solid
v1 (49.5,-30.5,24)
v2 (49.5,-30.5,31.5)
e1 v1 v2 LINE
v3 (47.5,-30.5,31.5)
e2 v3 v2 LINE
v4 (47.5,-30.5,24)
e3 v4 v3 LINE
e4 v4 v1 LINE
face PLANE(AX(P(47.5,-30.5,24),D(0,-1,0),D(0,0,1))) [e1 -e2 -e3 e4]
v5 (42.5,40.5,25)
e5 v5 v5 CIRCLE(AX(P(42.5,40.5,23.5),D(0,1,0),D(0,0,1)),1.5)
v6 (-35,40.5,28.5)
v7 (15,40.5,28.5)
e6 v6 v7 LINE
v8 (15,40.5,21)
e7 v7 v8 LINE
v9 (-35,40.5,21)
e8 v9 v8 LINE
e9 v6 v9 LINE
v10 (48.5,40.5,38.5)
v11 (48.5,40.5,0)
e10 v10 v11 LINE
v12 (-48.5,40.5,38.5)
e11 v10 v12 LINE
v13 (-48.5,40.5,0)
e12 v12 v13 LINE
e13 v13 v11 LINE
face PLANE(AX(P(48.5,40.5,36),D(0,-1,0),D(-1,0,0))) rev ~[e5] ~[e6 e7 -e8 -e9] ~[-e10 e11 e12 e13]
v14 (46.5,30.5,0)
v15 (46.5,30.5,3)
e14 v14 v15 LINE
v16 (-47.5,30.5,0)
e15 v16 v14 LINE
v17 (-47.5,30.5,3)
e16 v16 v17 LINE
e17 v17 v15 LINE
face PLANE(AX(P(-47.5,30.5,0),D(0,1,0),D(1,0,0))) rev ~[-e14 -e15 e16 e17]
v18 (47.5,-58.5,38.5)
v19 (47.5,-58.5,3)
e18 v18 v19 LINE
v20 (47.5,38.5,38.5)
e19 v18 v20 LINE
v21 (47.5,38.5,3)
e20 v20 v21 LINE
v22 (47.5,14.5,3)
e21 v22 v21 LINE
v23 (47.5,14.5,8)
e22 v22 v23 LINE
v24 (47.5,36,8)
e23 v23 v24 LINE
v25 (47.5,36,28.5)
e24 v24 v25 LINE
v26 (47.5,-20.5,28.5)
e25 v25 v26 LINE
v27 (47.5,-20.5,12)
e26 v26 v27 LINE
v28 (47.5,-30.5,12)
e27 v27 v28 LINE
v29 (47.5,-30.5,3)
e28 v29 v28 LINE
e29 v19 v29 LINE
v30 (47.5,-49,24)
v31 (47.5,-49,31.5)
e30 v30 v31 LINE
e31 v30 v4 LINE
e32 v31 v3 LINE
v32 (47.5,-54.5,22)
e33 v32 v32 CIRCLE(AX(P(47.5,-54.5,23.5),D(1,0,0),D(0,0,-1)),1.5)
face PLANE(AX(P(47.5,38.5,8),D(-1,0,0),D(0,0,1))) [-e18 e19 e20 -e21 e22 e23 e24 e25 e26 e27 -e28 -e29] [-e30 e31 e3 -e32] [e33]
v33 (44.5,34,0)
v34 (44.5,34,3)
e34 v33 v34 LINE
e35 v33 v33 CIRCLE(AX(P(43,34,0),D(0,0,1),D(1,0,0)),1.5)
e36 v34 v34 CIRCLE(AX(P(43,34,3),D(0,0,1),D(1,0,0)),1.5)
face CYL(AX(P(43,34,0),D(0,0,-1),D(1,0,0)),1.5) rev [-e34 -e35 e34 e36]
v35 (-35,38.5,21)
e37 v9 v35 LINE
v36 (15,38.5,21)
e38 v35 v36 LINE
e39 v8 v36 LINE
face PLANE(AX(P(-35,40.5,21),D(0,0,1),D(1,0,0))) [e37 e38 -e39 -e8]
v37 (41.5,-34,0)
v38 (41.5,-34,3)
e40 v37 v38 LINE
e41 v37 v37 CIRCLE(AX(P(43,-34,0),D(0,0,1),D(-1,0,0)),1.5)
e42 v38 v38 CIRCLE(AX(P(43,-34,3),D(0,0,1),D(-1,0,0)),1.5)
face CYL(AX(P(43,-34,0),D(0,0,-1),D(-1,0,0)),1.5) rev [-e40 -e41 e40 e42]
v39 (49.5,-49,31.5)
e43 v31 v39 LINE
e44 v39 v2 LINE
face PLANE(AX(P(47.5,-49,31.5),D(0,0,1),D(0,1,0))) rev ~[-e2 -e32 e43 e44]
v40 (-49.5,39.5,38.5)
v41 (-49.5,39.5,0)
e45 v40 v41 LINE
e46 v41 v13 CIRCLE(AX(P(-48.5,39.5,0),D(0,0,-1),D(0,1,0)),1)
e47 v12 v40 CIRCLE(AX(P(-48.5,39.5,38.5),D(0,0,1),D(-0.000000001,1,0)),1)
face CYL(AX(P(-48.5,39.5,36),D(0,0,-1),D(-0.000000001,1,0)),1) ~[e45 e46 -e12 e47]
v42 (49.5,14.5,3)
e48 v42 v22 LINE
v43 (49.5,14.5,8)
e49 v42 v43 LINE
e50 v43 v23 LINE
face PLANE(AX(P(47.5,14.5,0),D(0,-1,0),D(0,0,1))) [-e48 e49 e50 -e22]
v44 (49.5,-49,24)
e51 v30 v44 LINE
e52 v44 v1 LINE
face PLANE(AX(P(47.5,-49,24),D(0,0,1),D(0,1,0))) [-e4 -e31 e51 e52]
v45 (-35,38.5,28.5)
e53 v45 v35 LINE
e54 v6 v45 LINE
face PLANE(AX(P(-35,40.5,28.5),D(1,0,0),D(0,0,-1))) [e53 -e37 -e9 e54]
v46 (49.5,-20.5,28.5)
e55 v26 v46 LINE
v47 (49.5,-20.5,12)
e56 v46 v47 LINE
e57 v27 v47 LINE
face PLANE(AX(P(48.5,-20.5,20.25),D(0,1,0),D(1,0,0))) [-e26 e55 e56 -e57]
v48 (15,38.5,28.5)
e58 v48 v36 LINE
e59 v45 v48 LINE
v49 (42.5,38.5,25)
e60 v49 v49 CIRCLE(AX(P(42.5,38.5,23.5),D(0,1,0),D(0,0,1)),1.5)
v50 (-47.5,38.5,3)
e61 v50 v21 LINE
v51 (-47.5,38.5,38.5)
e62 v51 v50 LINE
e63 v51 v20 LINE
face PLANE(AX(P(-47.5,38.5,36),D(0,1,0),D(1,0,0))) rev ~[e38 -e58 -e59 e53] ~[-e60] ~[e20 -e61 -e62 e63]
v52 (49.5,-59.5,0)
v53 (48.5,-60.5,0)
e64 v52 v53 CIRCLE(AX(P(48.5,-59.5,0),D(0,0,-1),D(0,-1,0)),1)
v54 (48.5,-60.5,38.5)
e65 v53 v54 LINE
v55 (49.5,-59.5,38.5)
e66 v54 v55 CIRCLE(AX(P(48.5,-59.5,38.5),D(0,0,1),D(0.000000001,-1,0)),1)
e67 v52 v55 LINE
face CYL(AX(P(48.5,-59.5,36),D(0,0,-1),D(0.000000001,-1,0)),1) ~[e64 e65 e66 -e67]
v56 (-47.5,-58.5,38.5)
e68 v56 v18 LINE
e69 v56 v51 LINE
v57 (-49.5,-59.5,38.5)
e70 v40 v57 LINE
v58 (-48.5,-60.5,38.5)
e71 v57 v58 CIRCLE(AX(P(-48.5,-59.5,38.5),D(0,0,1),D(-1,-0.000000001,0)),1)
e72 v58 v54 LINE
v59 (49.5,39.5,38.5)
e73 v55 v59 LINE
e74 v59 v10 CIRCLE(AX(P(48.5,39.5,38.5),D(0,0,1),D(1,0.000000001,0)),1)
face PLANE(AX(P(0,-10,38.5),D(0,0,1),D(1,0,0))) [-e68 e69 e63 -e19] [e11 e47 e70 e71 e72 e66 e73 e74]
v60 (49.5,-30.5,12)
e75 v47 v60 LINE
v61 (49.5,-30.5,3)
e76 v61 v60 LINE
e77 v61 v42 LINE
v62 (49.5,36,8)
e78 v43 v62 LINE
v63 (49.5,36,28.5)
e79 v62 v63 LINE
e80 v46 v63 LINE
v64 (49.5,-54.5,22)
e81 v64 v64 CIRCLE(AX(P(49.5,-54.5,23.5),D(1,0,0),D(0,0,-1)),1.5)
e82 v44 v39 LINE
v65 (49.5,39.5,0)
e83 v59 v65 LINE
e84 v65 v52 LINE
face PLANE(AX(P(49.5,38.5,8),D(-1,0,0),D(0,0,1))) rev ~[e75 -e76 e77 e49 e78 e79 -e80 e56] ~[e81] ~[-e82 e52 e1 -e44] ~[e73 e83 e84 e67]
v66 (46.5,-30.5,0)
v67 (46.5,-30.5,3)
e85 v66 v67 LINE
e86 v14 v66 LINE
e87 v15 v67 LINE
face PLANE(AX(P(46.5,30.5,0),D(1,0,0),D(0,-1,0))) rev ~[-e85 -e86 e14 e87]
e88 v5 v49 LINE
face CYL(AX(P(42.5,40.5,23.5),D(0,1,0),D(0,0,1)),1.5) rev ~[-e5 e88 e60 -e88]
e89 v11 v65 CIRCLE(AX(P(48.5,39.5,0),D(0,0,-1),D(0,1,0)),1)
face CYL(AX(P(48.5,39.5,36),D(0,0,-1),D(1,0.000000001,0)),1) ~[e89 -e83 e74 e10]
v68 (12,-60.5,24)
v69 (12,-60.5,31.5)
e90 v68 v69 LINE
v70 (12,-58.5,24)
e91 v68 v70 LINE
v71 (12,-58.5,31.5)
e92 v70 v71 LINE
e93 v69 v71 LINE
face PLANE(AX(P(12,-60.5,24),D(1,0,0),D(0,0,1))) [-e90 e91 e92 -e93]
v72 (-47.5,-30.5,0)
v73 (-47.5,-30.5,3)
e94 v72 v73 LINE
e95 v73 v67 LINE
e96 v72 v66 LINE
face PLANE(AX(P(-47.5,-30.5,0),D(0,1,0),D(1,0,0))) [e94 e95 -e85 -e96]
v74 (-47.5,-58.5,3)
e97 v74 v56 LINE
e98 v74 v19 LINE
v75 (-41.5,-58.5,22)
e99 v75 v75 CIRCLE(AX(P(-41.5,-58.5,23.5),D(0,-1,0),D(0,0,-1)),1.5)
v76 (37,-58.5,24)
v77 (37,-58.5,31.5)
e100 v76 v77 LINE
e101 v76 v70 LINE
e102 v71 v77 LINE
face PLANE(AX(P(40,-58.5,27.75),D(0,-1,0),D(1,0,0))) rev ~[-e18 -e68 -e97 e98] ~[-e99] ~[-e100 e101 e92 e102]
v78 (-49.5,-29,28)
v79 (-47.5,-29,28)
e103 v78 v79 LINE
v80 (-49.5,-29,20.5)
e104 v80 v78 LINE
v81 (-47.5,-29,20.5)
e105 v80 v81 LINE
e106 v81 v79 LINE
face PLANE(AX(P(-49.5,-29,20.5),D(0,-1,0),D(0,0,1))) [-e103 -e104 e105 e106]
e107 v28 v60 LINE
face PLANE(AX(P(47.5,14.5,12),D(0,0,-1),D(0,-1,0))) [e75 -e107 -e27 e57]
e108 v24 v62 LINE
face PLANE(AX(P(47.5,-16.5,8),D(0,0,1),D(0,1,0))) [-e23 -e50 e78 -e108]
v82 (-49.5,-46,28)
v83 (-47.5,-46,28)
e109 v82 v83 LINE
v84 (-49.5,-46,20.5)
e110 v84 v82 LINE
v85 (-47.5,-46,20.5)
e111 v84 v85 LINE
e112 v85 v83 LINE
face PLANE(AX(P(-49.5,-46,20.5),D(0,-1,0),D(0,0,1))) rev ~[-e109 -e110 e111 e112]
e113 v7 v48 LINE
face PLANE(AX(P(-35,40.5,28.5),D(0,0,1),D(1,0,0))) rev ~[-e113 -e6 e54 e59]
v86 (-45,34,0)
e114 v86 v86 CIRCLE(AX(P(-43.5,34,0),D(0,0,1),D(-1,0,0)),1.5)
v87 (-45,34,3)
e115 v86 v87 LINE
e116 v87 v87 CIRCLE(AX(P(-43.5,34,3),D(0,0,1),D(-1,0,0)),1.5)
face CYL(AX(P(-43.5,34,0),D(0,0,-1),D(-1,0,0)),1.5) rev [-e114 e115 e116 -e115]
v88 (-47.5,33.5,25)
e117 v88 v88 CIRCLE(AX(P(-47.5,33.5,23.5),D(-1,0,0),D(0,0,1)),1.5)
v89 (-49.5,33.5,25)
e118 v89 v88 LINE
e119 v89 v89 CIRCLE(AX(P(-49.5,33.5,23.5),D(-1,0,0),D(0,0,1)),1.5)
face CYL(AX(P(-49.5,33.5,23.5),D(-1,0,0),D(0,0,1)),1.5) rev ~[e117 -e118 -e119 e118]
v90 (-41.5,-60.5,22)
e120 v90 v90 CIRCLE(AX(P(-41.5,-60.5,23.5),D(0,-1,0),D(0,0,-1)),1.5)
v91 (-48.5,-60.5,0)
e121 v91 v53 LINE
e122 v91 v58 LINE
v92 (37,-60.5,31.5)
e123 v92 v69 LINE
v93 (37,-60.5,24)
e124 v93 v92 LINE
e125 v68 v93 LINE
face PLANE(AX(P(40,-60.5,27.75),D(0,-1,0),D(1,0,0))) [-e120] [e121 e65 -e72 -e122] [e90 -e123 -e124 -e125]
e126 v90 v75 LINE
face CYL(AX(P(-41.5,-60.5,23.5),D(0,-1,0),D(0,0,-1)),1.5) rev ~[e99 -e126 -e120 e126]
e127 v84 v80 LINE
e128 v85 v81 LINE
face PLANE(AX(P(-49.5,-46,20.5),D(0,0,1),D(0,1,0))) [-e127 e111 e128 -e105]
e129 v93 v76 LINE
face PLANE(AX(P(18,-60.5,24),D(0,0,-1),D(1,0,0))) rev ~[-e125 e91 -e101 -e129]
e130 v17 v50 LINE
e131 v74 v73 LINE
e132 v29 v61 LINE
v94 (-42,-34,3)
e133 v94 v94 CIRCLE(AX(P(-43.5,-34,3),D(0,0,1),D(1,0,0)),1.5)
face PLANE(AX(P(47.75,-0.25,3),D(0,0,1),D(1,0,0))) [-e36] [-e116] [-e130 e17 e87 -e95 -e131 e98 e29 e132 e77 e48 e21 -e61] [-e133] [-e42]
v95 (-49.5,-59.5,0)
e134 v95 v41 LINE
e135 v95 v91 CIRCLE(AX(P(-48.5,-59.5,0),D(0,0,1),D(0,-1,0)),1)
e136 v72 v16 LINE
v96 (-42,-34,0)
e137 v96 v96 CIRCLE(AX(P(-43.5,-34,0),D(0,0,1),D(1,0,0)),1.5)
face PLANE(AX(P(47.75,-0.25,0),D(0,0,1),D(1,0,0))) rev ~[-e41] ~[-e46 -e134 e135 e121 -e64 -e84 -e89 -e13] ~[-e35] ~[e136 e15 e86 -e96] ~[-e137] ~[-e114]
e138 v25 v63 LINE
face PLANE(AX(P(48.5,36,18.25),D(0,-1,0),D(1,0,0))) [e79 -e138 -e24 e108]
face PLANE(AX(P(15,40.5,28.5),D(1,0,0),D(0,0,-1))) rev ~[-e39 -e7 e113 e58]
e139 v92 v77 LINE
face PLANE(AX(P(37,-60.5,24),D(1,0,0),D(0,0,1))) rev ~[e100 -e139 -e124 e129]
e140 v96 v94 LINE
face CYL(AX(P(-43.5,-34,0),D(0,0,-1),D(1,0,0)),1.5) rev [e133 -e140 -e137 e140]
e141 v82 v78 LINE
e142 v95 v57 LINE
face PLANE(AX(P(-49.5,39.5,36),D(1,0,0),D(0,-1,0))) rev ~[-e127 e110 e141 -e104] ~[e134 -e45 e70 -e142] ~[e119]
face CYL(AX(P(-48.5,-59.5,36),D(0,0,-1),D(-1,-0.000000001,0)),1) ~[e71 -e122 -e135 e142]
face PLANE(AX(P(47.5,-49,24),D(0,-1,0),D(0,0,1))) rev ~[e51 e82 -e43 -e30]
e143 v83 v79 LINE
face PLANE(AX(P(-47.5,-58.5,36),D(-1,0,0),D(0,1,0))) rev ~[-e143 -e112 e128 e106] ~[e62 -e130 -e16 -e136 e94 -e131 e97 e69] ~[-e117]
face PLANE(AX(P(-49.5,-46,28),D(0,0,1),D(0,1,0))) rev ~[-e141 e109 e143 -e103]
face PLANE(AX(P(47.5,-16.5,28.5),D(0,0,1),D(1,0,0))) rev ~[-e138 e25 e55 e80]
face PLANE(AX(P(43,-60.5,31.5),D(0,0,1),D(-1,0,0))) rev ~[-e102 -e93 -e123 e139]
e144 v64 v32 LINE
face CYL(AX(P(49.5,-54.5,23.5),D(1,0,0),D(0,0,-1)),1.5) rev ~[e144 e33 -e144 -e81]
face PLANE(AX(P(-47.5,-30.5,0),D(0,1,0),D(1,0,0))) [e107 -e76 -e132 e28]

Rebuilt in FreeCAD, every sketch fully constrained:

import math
import FreeCAD as App
import Part
import Sketcher


def edges_at(feature, points):
    """Names of the edges that pass closest to the given points."""
    edges = feature.Shape.Edges
    near = lambda p: min(range(len(edges)), key=lambda i: edges[i].distToShape(Part.Vertex(*p))[0])
    return sorted({f"Edge{near(p) + 1}" for p in points})


def add_polygon(sketch, points):
    """Adds a closed chain of lines whose ends are joined by coincident constraints."""
    first, n = sketch.GeometryCount, len(points)
    for a, b in zip(points, points[1:] + points[:1]):
        sketch.addGeometry(Part.LineSegment(App.Vector(*a, 0), App.Vector(*b, 0)), False)
    for i in range(n):
        sketch.addConstraint(Sketcher.Constraint("Coincident", first + i, 2, first + (i + 1) % n, 1))

doc = App.newDocument("Part")
params = doc.addObject("Spreadsheet::Sheet", "Params")
for row, (alias, value) in enumerate([
    ("sketch1_diameter", "3 mm"),
    ("sketch1_width", "99 mm"),
    ("sketch1_width2", "95 mm"),
    ("sketch1_height", "104 mm"),
    ("sketch1_height2", "61 mm"),
    ("pad1_length", "3 mm"),
    ("sketch2_width", "99 mm"),
    ("sketch2_width2", "95 mm"),
    ("sketch2_height", "104 mm"),
    ("sketch2_height2", "100 mm"),
    ("pad2_length", "33 mm"),
    ("sketch3_width", "45 mm"),
    ("sketch3_height", "12 mm"),
    ("pocket1_length", "30 mm"),
    ("sketch4_width", "50 mm"),
    ("sketch4_height", "7.5 mm"),
    ("pocket2_length", "30 mm"),
    ("sketch5_width", "55 mm"),
    ("sketch5_height", "28 mm"),
    ("pocket3_length", "30 mm"),
    ("sketch6_width", "18.5 mm"),
    ("sketch6_height", "7.5 mm"),
    ("pocket4_length", "30 mm"),
    ("sketch7_width", "25 mm"),
    ("sketch7_height", "7.5 mm"),
    ("pocket5_length", "30 mm"),
    ("fillet_radius", "1 mm"),
    ("sketch8_width", "2 mm"),
    ("sketch8_height", "55 mm"),
    ("pad3_length", "7.5 mm"),
    ("sketch9_width", "95 mm"),
    ("sketch9_width2", "25 mm"),
    ("sketch9_height", "33 mm"),
    ("sketch9_height2", "7.5 mm"),
    ("pad4_length", "3 mm"),
    ("pocket6_length", "3 mm"),
    ("sketch11_width", "1 mm"),
    ("sketch11_width2", "2 mm"),
    ("sketch11_height", "16 mm"),
    ("sketch11_height2", "45 mm"),
    ("pad5_length", "3 mm"),
    ("sketch12_width", "17 mm"),
    ("sketch12_height", "7.5 mm"),
    ("pocket7_length", "3 mm"),
    ("fillet2_radius", "1 mm"),
    ("sketch13_radius", "1 mm"),
    ("sketch13_width", "97 mm"),
    ("sketch13_width2", "95 mm"),
    ("sketch13_height", "99 mm"),
    ("pad6_length", "2.5 mm"),
    ("sketch14_width", "2 mm"),
    ("sketch14_height", "20.5 mm"),
    ("pad7_length", "2.5 mm"),
    ("sketch15_width", "25 mm"),
    ("sketch15_width2", "22 mm"),
    ("sketch15_height", "7.5 mm"),
    ("pocket8_length", "2 mm"),
    ("sketch16_width", "3 mm"),
    ("sketch16_width2", "25 mm"),
    ("sketch16_height", "7.5 mm"),
    ("pad8_length", "2 mm"),
    ("sketch17_diameter", "3 mm"),
    ("pocket9_length", "2 mm"),
    ("sketch18_diameter", "3 mm"),
    ("pocket10_length", "2 mm"),
    ("sketch19_diameter", "3 mm"),
    ("pocket11_length", "2 mm"),
    ("sketch20_diameter", "3 mm"),
    ("pocket12_length", "2 mm"),
    ("sketch21_width", "2 mm"),
    ("sketch21_height", "16.5 mm"),
    ("pocket13_length", "4 mm"),
    ("sketch22_width", "6 mm"),
    ("sketch22_height", "7.5 mm"),
    ("pad9_length", "2 mm"),
    ("sketch23_width", "6 mm"),
    ("sketch23_height", "7.5 mm"),
    ("pocket14_length", "2 mm"),
], start=1):
    params.set(f"A{row}", alias)
    params.set(f"B{row}", "=" + value)
    params.setAlias(f"B{row}", alias)

body = doc.addObject("PartDesign::Body", "Body")

# Sketch on XY plane
sketch1 = body.newObject("Sketcher::SketchObject", "Sketch")
sketch1.AttachmentSupport = (doc.getObject("XY_Plane"), [""])
sketch1.MapMode = "FlatFace"
add_polygon(sketch1, [(-49.5, 40.5), (-49.5, -63.5), (49.5, -63.5), (49.5, 40.5)])  # lines 0-3
sketch1.addGeometry(Part.Circle(App.Vector(-43.5, -34, 0), App.Vector(0, 0, 1), 1.5), False)  # 4
sketch1.addGeometry(Part.Circle(App.Vector(43, -34, 0), App.Vector(0, 0, 1), 1.5), False)  # 5
sketch1.addGeometry(Part.Circle(App.Vector(-43.5, 34, 0), App.Vector(0, 0, 1), 1.5), False)  # 6
add_polygon(sketch1, [(47.5, -30.5), (-47.5, -30.5), (-47.5, 30.5), (47.5, 30.5)])  # lines 7-10
sketch1.addGeometry(Part.Circle(App.Vector(43, 34, 0), App.Vector(0, 0, 1), 1.5), False)  # 11
sketch1.addConstraint([
    Sketcher.Constraint("Vertical", 0),
    Sketcher.Constraint("Horizontal", 1),
    Sketcher.Constraint("Vertical", 2),
    Sketcher.Constraint("Horizontal", 3),
    Sketcher.Constraint("Horizontal", 7),
    Sketcher.Constraint("Vertical", 8),
    Sketcher.Constraint("Horizontal", 9),
    Sketcher.Constraint("Vertical", 10),
    Sketcher.Constraint("Equal", 4, 5),
    Sketcher.Constraint("Equal", 5, 6),
    Sketcher.Constraint("Equal", 6, 11),
    Sketcher.Constraint("Symmetric", 7, 2, 9, 2, -1, 1),
    Sketcher.Constraint("Symmetric", 4, 3, 6, 3, -1),
    Sketcher.Constraint("Symmetric", 5, 3, 11, 3, -1),
    Sketcher.Constraint("Horizontal", 4, 3, 5, 3),
    Sketcher.Constraint("Diameter", 4, 3.0),
    Sketcher.Constraint("DistanceX", 1, 1, 1, 2, 99.0),
    Sketcher.Constraint("DistanceX", 7, 2, 7, 1, 95.0),
    Sketcher.Constraint("DistanceY", 0, 2, 0, 1, 104.0),
    Sketcher.Constraint("DistanceY", 8, 1, 8, 2, 61.0),
    Sketcher.Constraint("DistanceY", 4, 3, -1, 1, 34.0),
    Sketcher.Constraint("DistanceX", -1, 1, 5, 3, 43.0),
    Sketcher.Constraint("DistanceX", 0, 2, 4, 3, 6.0),
    Sketcher.Constraint("DistanceX", 7, 2, 4, 3, 4.0),
    Sketcher.Constraint("DistanceY", 0, 2, 7, 2, 33.0),
])
sketch1.setExpression("Constraints[23]", "Params.sketch1_diameter")
sketch1.setExpression("Constraints[24]", "Params.sketch1_width")
sketch1.setExpression("Constraints[25]", "Params.sketch1_width2")
sketch1.setExpression("Constraints[26]", "Params.sketch1_height")
sketch1.setExpression("Constraints[27]", "Params.sketch1_height2")
pad1 = body.newObject("PartDesign::Pad", "Pad")
pad1.Profile = sketch1
pad1.setExpression("Length", "Params.pad1_length")

# Sketch on XY plane
sketch2 = body.newObject("Sketcher::SketchObject", "Sketch001")
sketch2.AttachmentSupport = (doc.getObject("XY_Plane"), [""])
sketch2.MapMode = "FlatFace"
sketch2.AttachmentOffset = App.Placement(App.Vector(0, 0, 3), App.Rotation())
add_polygon(sketch2, [(-50, 40), (-50, -64), (50, -64), (50, 40)])  # lines 0-3
add_polygon(sketch2, [(48, -62), (-48, -62), (-48, 38), (48, 38)])  # lines 4-7
sketch2.addConstraint([
    Sketcher.Constraint("Vertical", 0),
    Sketcher.Constraint("Horizontal", 1),
    Sketcher.Constraint("Vertical", 2),
    Sketcher.Constraint("Horizontal", 3),
    Sketcher.Constraint("Horizontal", 4),
    Sketcher.Constraint("Vertical", 5),
    Sketcher.Constraint("Horizontal", 6),
    Sketcher.Constraint("Vertical", 7),
    Sketcher.Constraint("DistanceX", 1, 1, 1, 2, 99.0),
    Sketcher.Constraint("DistanceX", 4, 2, 4, 1, 95.0),
    Sketcher.Constraint("DistanceY", 0, 2, 0, 1, 104.0),
    Sketcher.Constraint("DistanceY", 5, 1, 5, 2, 100.0),
    Sketcher.Constraint("DistanceX", 0, 2, 4, 2, 2.0),
    Sketcher.Constraint("DistanceY", 0, 2, 4, 2, 2.0),
    Sketcher.Constraint("DistanceX", 0, 2, -1, 1, 49.5),
    Sketcher.Constraint("DistanceY", 0, 2, -1, 1, 63.5),
])
sketch2.setExpression("Constraints[16]", "Params.sketch2_width")
sketch2.setExpression("Constraints[17]", "Params.sketch2_width2")
sketch2.setExpression("Constraints[18]", "Params.sketch2_height")
sketch2.setExpression("Constraints[19]", "Params.sketch2_height2")
pad2 = body.newObject("PartDesign::Pad", "Pad001")
pad2.Profile = sketch2
pad2.setExpression("Length", "Params.pad2_length")

# Sketch on YZ plane
sketch3 = body.newObject("Sketcher::SketchObject", "Sketch002")
sketch3.AttachmentSupport = (doc.getObject("YZ_Plane"), [""])
sketch3.MapMode = "FlatFace"
sketch3.AttachmentOffset = App.Placement(App.Vector(0, 0, 47.5), App.Rotation())
add_polygon(sketch3, [(-30, 12), (14, 12), (14, 0), (-30, 0)])  # lines 0-3
sketch3.addConstraint([
    Sketcher.Constraint("Horizontal", 0),
    Sketcher.Constraint("Vertical", 1),
    Sketcher.Constraint("Horizontal", 2),
    Sketcher.Constraint("Vertical", 3),
    Sketcher.Constraint("PointOnObject", 1, 2, -1),
    Sketcher.Constraint("DistanceX", 0, 1, 0, 2, 45.0),
    Sketcher.Constraint("DistanceY", 1, 2, 1, 1, 12.0),
    Sketcher.Constraint("DistanceX", -1, 1, 0, 2, 14.5),
])
sketch3.setExpression("Constraints[9]", "Params.sketch3_width")
sketch3.setExpression("Constraints[10]", "Params.sketch3_height")
pocket1 = body.newObject("PartDesign::Pocket", "Pocket")
pocket1.Profile = sketch3
pocket1.setExpression("Length", "Params.pocket1_length")
pocket1.Reversed = True

# Sketch on XZ plane
sketch4 = body.newObject("Sketcher::SketchObject", "Sketch003")
sketch4.AttachmentSupport = (doc.getObject("XZ_Plane"), [""])
sketch4.MapMode = "FlatFace"
sketch4.AttachmentOffset = App.Placement(App.Vector(0, 0, -40.5), App.Rotation())
add_polygon(sketch4, [(-35, 21), (-35, 28), (15, 28), (15, 21)])  # lines 0-3
sketch4.addConstraint([
    Sketcher.Constraint("Vertical", 0),
    Sketcher.Constraint("Horizontal", 1),
    Sketcher.Constraint("Vertical", 2),
    Sketcher.Constraint("Horizontal", 3),
    Sketcher.Constraint("DistanceX", 1, 1, 1, 2, 50.0),
    Sketcher.Constraint("DistanceY", 0, 1, 0, 2, 7.5),
    Sketcher.Constraint("DistanceX", 0, 2, -1, 1, 35.0),
    Sketcher.Constraint("DistanceY", -1, 1, 2, 2, 21.0),
])
sketch4.setExpression("Constraints[8]", "Params.sketch4_width")
sketch4.setExpression("Constraints[9]", "Params.sketch4_height")
pocket2 = body.newObject("PartDesign::Pocket", "Pocket001")
pocket2.Profile = sketch4
pocket2.setExpression("Length", "Params.pocket2_length")
pocket2.Reversed = True

# Sketch on YZ plane
sketch5 = body.newObject("Sketcher::SketchObject", "Sketch004")
sketch5.AttachmentSupport = (doc.getObject("YZ_Plane"), [""])
sketch5.MapMode = "FlatFace"
sketch5.AttachmentOffset = App.Placement(App.Vector(0, 0, 47.5), App.Rotation())
add_polygon(sketch5, [(38, 8), (-16, 8), (-16, 36), (38, 36)])  # lines 0-3
sketch5.addConstraint([
    Sketcher.Constraint("Horizontal", 0),
    Sketcher.Constraint("Vertical", 1),
    Sketcher.Constraint("Horizontal", 2),
    Sketcher.Constraint("Vertical", 3),
    Sketcher.Constraint("DistanceX", 0, 2, 0, 1, 55.0),
    Sketcher.Constraint("DistanceY", 1, 1, 1, 2, 28.0),
    Sketcher.Constraint("DistanceY", -1, 1, 0, 2, 8.0),
    Sketcher.Constraint("DistanceX", 0, 2, -1, 1, 16.5),
])
sketch5.setExpression("Constraints[8]", "Params.sketch5_width")
sketch5.setExpression("Constraints[9]", "Params.sketch5_height")
pocket3 = body.newObject("PartDesign::Pocket", "Pocket002")
pocket3.Profile = sketch5
pocket3.setExpression("Length", "Params.pocket3_length")
pocket3.Reversed = True

# Sketch on YZ plane
sketch6 = body.newObject("Sketcher::SketchObject", "Sketch005")
sketch6.AttachmentSupport = (doc.getObject("YZ_Plane"), [""])
sketch6.MapMode = "FlatFace"
sketch6.AttachmentOffset = App.Placement(App.Vector(0, 0, 47.5), App.Rotation())
add_polygon(sketch6, [(-30, 24), (-49, 24), (-49, 32), (-30, 32)])  # lines 0-3
sketch6.addConstraint([
    Sketcher.Constraint("Horizontal", 0),
    Sketcher.Constraint("Vertical", 1),
    Sketcher.Constraint("Horizontal", 2),
    Sketcher.Constraint("Vertical", 3),
    Sketcher.Constraint("DistanceX", 0, 2, 0, 1, 18.5),
    Sketcher.Constraint("DistanceY", 1, 1, 1, 2, 7.5),
    Sketcher.Constraint("DistanceX", 0, 2, -1, 1, 49.0),
    Sketcher.Constraint("DistanceY", -1, 1, 0, 2, 24.0),
])
sketch6.setExpression("Constraints[8]", "Params.sketch6_width")
sketch6.setExpression("Constraints[9]", "Params.sketch6_height")
pocket4 = body.newObject("PartDesign::Pocket", "Pocket003")
pocket4.Profile = sketch6
pocket4.setExpression("Length", "Params.pocket4_length")
pocket4.Reversed = True

# Sketch on XZ plane
sketch7 = body.newObject("Sketcher::SketchObject", "Sketch006")
sketch7.AttachmentSupport = (doc.getObject("XZ_Plane"), [""])
sketch7.MapMode = "FlatFace"
sketch7.AttachmentOffset = App.Placement(App.Vector(0, 0, 61.5), App.Rotation())
add_polygon(sketch7, [(15, 21), (15, 28), (40, 28), (40, 21)])  # lines 0-3
sketch7.addConstraint([
    Sketcher.Constraint("Vertical", 0),
    Sketcher.Constraint("Horizontal", 1),
    Sketcher.Constraint("Vertical", 2),
    Sketcher.Constraint("Horizontal", 3),
    Sketcher.Constraint("DistanceX", 1, 1, 1, 2, 25.0),
    Sketcher.Constraint("DistanceY", 0, 1, 0, 2, 7.5),
    Sketcher.Constraint("DistanceX", -1, 1, 0, 2, 15.0),
    Sketcher.Constraint("DistanceY", -1, 1, 2, 2, 21.0),
])
sketch7.setExpression("Constraints[8]", "Params.sketch7_width")
sketch7.setExpression("Constraints[9]", "Params.sketch7_height")
pocket5 = body.newObject("PartDesign::Pocket", "Pocket004")
pocket5.Profile = sketch7
pocket5.setExpression("Length", "Params.pocket5_length")
pocket5.Reversed = True
doc.recompute()

fillet = body.newObject("PartDesign::Fillet", "Fillet")
fillet.Base = (pocket5, edges_at(pocket5, [
    (-49.5, 40.5, 18),
    (49.5, 40.5, 18),
    (49.5, -63.5, 18),
    (-49.5, -63.5, 18),
]))
fillet.setExpression("Radius", "Params.fillet_radius")

# Sketch on XY plane
sketch8 = body.newObject("Sketcher::SketchObject", "Sketch007")
sketch8.AttachmentSupport = (doc.getObject("XY_Plane"), [""])
sketch8.MapMode = "FlatFace"
sketch8.AttachmentOffset = App.Placement(App.Vector(0, 0, 36), App.Rotation())
add_polygon(sketch8, [(47.5, 38.5), (47.5, -16.5), (49.5, -16.5), (49.5, 38.5)])  # lines 0-3
sketch8.addConstraint([
    Sketcher.Constraint("Vertical", 0),
    Sketcher.Constraint("Horizontal", 1),
    Sketcher.Constraint("Vertical", 2),
    Sketcher.Constraint("Horizontal", 3),
    Sketcher.Constraint("DistanceX", 1, 1, 1, 2, 2.0),
    Sketcher.Constraint("DistanceY", 0, 2, 0, 1, 55.0),
    Sketcher.Constraint("DistanceX", -1, 1, 0, 2, 47.5),
    Sketcher.Constraint("DistanceY", 0, 2, -1, 1, 16.5),
])
sketch8.setExpression("Constraints[8]", "Params.sketch8_width")
sketch8.setExpression("Constraints[9]", "Params.sketch8_height")
pad3 = body.newObject("PartDesign::Pad", "Pad002")
pad3.Profile = sketch8
pad3.setExpression("Length", "Params.pad3_length")
pad3.Reversed = True

# Sketch on XZ plane
sketch9 = body.newObject("Sketcher::SketchObject", "Sketch008")
sketch9.AttachmentSupport = (doc.getObject("XZ_Plane"), [""])
sketch9.MapMode = "FlatFace"
sketch9.AttachmentOffset = App.Placement(App.Vector(0, 0, 61.5), App.Rotation())
add_polygon(sketch9, [(-48, 3), (-48, 36), (48, 36), (48, 3)])  # lines 0-3
add_polygon(sketch9, [(40, 28), (15, 28), (15, 21), (40, 21)])  # lines 4-7
sketch9.addConstraint([
    Sketcher.Constraint("Vertical", 0),
    Sketcher.Constraint("Horizontal", 1),
    Sketcher.Constraint("Vertical", 2),
    Sketcher.Constraint("Horizontal", 3),
    Sketcher.Constraint("Horizontal", 4),
    Sketcher.Constraint("Vertical", 5),
    Sketcher.Constraint("Horizontal", 6),
    Sketcher.Constraint("Vertical", 7),
    Sketcher.Constraint("DistanceX", 1, 1, 1, 2, 95.0),
    Sketcher.Constraint("DistanceX", 4, 2, 4, 1, 25.0),
    Sketcher.Constraint("DistanceY", 0, 1, 0, 2, 33.0),
    Sketcher.Constraint("DistanceY", 5, 2, 5, 1, 7.5),
    Sketcher.Constraint("DistanceY", -1, 1, 0, 2, 36.0),
    Sketcher.Constraint("DistanceX", -1, 1, 4, 2, 15.0),
    Sketcher.Constraint("DistanceY", -1, 1, 5, 2, 21.0),
    Sketcher.Constraint("DistanceX", 0, 2, -1, 1, 47.5),
])
sketch9.setExpression("Constraints[16]", "Params.sketch9_width")
sketch9.setExpression("Constraints[17]", "Params.sketch9_width2")
sketch9.setExpression("Constraints[18]", "Params.sketch9_height")
sketch9.setExpression("Constraints[19]", "Params.sketch9_height2")
pad4 = body.newObject("PartDesign::Pad", "Pad003")
pad4.Profile = sketch9
pad4.setExpression("Length", "Params.pad4_length")
pad4.Reversed = True

# Sketch on XZ plane
sketch10 = body.newObject("Sketcher::SketchObject", "Sketch009")
sketch10.AttachmentSupport = (doc.getObject("XZ_Plane"), [""])
sketch10.MapMode = "FlatFace"
sketch10.AttachmentOffset = App.Placement(App.Vector(0, 0, 63.5), App.Rotation())
add_polygon(sketch10, [(-86, 83), (-86, -51), (92, -51), (92, 83)])  # lines 0-3
sketch10.addConstraint([
    Sketcher.Constraint("Vertical", 0),
    Sketcher.Constraint("Horizontal", 1),
    Sketcher.Constraint("Vertical", 2),
    Sketcher.Constraint("Horizontal", 3),
    Sketcher.Constraint("DistanceX", 1, 1, 1, 2, 178.192268),
    Sketcher.Constraint("DistanceY", 0, 2, 0, 1, 134.394803),
    Sketcher.Constraint("DistanceX", 0, 2, -1, 1, 86.045619),
    Sketcher.Constraint("DistanceY", 0, 2, -1, 1, 51.295546),
])
pocket6 = body.newObject("PartDesign::Pocket", "Pocket005")
pocket6.Profile = sketch10
pocket6.setExpression("Length", "Params.pocket6_length")

# Sketch on XY plane
sketch11 = body.newObject("Sketcher::SketchObject", "Sketch010")
sketch11.AttachmentSupport = (doc.getObject("XY_Plane"), [""])
sketch11.MapMode = "FlatFace"
add_polygon(sketch11, [(46.5, 30.5), (47.5, 30.5), (47.5, 14.5), (49.5, 14.5), (49.5, -30.5), (46.5, -30.5)])  # lines 0-5
sketch11.addConstraint([
    Sketcher.Constraint("Horizontal", 0),
    Sketcher.Constraint("Vertical", 1),
    Sketcher.Constraint("Horizontal", 2),
    Sketcher.Constraint("Vertical", 3),
    Sketcher.Constraint("Horizontal", 4),
    Sketcher.Constraint("Vertical", 5),
    Sketcher.Constraint("DistanceX", 0, 1, 0, 2, 1.0),
    Sketcher.Constraint("DistanceX", 2, 1, 2, 2, 2.0),
    Sketcher.Constraint("DistanceY", 1, 2, 1, 1, 16.0),
    Sketcher.Constraint("DistanceY", 3, 2, 3, 1, 45.0),
    Sketcher.Constraint("DistanceX", -1, 1, 0, 2, 47.5),
    Sketcher.Constraint("DistanceY", -1, 1, 0, 2, 30.5),
])
sketch11.setExpression("Constraints[12]", "Params.sketch11_width")
sketch11.setExpression("Constraints[13]", "Params.sketch11_width2")
sketch11.setExpression("Constraints[14]", "Params.sketch11_height")
sketch11.setExpression("Constraints[15]", "Params.sketch11_height2")
pad5 = body.newObject("PartDesign::Pad", "Pad004")
pad5.Profile = sketch11
pad5.setExpression("Length", "Params.pad5_length")

# Sketch on YZ plane
sketch12 = body.newObject("Sketcher::SketchObject", "Sketch011")
sketch12.AttachmentSupport = (doc.getObject("YZ_Plane"), [""])
sketch12.MapMode = "FlatFace"
sketch12.AttachmentOffset = App.Placement(App.Vector(0, 0, -49.5), App.Rotation())
add_polygon(sketch12, [(-29, 20), (-46, 20), (-46, 28), (-29, 28)])  # lines 0-3
sketch12.addConstraint([
    Sketcher.Constraint("Horizontal", 0),
    Sketcher.Constraint("Vertical", 1),
    Sketcher.Constraint("Horizontal", 2),
    Sketcher.Constraint("Vertical", 3),
    Sketcher.Constraint("DistanceX", 0, 2, 0, 1, 17.0),
    Sketcher.Constraint("DistanceY", 1, 1, 1, 2, 7.5),
    Sketcher.Constraint("DistanceX", 0, 2, -1, 1, 46.0),
    Sketcher.Constraint("DistanceY", -1, 1, 1, 2, 28.0),
])
sketch12.setExpression("Constraints[8]", "Params.sketch12_width")
sketch12.setExpression("Constraints[9]", "Params.sketch12_height")
pocket7 = body.newObject("PartDesign::Pocket", "Pocket006")
pocket7.Profile = sketch12
pocket7.setExpression("Length", "Params.pocket7_length")
pocket7.Reversed = True
doc.recompute()

fillet2 = body.newObject("PartDesign::Fillet", "Fillet001")
fillet2.Base = (pocket7, edges_at(pocket7, [(49.5, -60.5, 18), (-49.5, -60.5, 18)]))
fillet2.setExpression("Radius", "Params.fillet2_radius")

# Sketch on XY plane
sketch13 = body.newObject("Sketcher::SketchObject", "Sketch012")
sketch13.AttachmentSupport = (doc.getObject("XY_Plane"), [""])
sketch13.MapMode = "FlatFace"
sketch13.AttachmentOffset = App.Placement(App.Vector(0, 0, 36), App.Rotation())
sketch13.addGeometry(Part.LineSegment(App.Vector(-49.5, 39.5, 0), App.Vector(-49.5, -59.5, 0)), False)  # 0
sketch13.addGeometry(Part.ArcOfCircle(Part.Circle(App.Vector(-48.5, -59.5, 0), App.Vector(0, 0, 1), 1), math.radians(-180), math.radians(-90)), False)  # 1
sketch13.addGeometry(Part.LineSegment(App.Vector(-48.5, -60.5, 0), App.Vector(48.5, -60.5, 0)), False)  # 2
sketch13.addGeometry(Part.ArcOfCircle(Part.Circle(App.Vector(48.5, -59.5, 0), App.Vector(0, 0, 1), 1), math.radians(-90), math.radians(0)), False)  # 3
sketch13.addGeometry(Part.LineSegment(App.Vector(49.5, -59.5, 0), App.Vector(49.5, 39.5, 0)), False)  # 4
sketch13.addGeometry(Part.ArcOfCircle(Part.Circle(App.Vector(48.5, 39.5, 0), App.Vector(0, 0, 1), 1), math.radians(0), math.radians(90)), False)  # 5
sketch13.addGeometry(Part.LineSegment(App.Vector(48.5, 40.5, 0), App.Vector(-48.5, 40.5, 0)), False)  # 6
sketch13.addGeometry(Part.ArcOfCircle(Part.Circle(App.Vector(-48.5, 39.5, 0), App.Vector(0, 0, 1), 1), math.radians(90), math.radians(180)), False)  # 7
add_polygon(sketch13, [(47.5, -58.5), (-47.5, -58.5), (-47.5, 38.5), (47.5, 38.5)])  # lines 8-11
sketch13.addConstraint([
    Sketcher.Constraint("Tangent", 0, 2, 1, 1),
    Sketcher.Constraint("Tangent", 1, 2, 2, 1),
    Sketcher.Constraint("Tangent", 2, 2, 3, 1),
    Sketcher.Constraint("Tangent", 3, 2, 4, 1),
    Sketcher.Constraint("Tangent", 4, 2, 5, 1),
    Sketcher.Constraint("Tangent", 5, 2, 6, 1),
    Sketcher.Constraint("Tangent", 6, 2, 7, 1),
    Sketcher.Constraint("Tangent", 7, 2, 0, 1),
    Sketcher.Constraint("Vertical", 0),
    Sketcher.Constraint("Horizontal", 2),
    Sketcher.Constraint("Vertical", 4),
    Sketcher.Constraint("Horizontal", 6),
    Sketcher.Constraint("Horizontal", 8),
    Sketcher.Constraint("Vertical", 9),
    Sketcher.Constraint("Horizontal", 10),
    Sketcher.Constraint("Vertical", 11),
    Sketcher.Constraint("Equal", 1, 3),
    Sketcher.Constraint("Equal", 3, 5),
    Sketcher.Constraint("Equal", 5, 7),
    Sketcher.Constraint("Equal", 6, 9),
    Sketcher.Constraint("Radius", 1, 1.0),
    Sketcher.Constraint("DistanceX", 2, 1, 2, 2, 97.0),
    Sketcher.Constraint("DistanceX", 8, 2, 8, 1, 95.0),
    Sketcher.Constraint("DistanceY", 0, 2, 0, 1, 99.0),
    Sketcher.Constraint("DistanceX", 1, 3, 8, 2, 1.0),
    Sketcher.Constraint("DistanceY", 1, 3, 8, 2, 1.0),
    Sketcher.Constraint("DistanceX", 1, 3, -1, 1, 48.5),
    Sketcher.Constraint("DistanceY", 1, 3, -1, 1, 59.5),
])
sketch13.setExpression("Constraints[24]", "Params.sketch13_radius")
sketch13.setExpression("Constraints[25]", "Params.sketch13_width")
sketch13.setExpression("Constraints[26]", "Params.sketch13_width2")
sketch13.setExpression("Constraints[27]", "Params.sketch13_height")
pad6 = body.newObject("PartDesign::Pad", "Pad005")
pad6.Profile = sketch13
pad6.setExpression("Length", "Params.pad6_length")

# Sketch on XZ plane
sketch14 = body.newObject("Sketcher::SketchObject", "Sketch013")
sketch14.AttachmentSupport = (doc.getObject("XZ_Plane"), [""])
sketch14.MapMode = "FlatFace"
sketch14.AttachmentOffset = App.Placement(App.Vector(0, 0, -38.5), App.Rotation())
add_polygon(sketch14, [(47.5, 28.5), (47.5, 8), (49.5, 8), (49.5, 28.5)])  # lines 0-3
sketch14.addConstraint([
    Sketcher.Constraint("Vertical", 0),
    Sketcher.Constraint("Horizontal", 1),
    Sketcher.Constraint("Vertical", 2),
    Sketcher.Constraint("Horizontal", 3),
    Sketcher.Constraint("DistanceX", 1, 1, 1, 2, 2.0),
    Sketcher.Constraint("DistanceY", 0, 2, 0, 1, 20.5),
    Sketcher.Constraint("DistanceY", -1, 1, 0, 2, 8.0),
    Sketcher.Constraint("DistanceX", -1, 1, 0, 2, 47.5),
])
sketch14.setExpression("Constraints[8]", "Params.sketch14_width")
sketch14.setExpression("Constraints[9]", "Params.sketch14_height")
pad7 = body.newObject("PartDesign::Pad", "Pad006")
pad7.Profile = sketch14
pad7.setExpression("Length", "Params.pad7_length")

# Sketch on XZ plane
sketch15 = body.newObject("Sketcher::SketchObject", "Sketch014")
sketch15.AttachmentSupport = (doc.getObject("XZ_Plane"), [""])
sketch15.MapMode = "FlatFace"
sketch15.AttachmentOffset = App.Placement(App.Vector(0, 0, 60.5), App.Rotation())
add_polygon(sketch15, [(43, 24), (43, 31.5), (18, 31.5), (18, 28.5), (40, 28.5), (40, 24)])  # lines 0-5
sketch15.addConstraint([
    Sketcher.Constraint("Vertical", 0),
    Sketcher.Constraint("Horizontal", 1),
    Sketcher.Constraint("Vertical", 2),
    Sketcher.Constraint("Horizontal", 3),
    Sketcher.Constraint("Vertical", 4),
    Sketcher.Constraint("Horizontal", 5),
    Sketcher.Constraint("Equal", 5, 2),
    Sketcher.Constraint("DistanceX", 1, 2, 1, 1, 25.0),
    Sketcher.Constraint("DistanceX", 3, 1, 3, 2, 22.0),
    Sketcher.Constraint("DistanceY", 0, 1, 0, 2, 7.5),
    Sketcher.Constraint("DistanceX", -1, 1, 0, 2, 43.0),
    Sketcher.Constraint("DistanceY", -1, 1, 4, 2, 24.0),
])
sketch15.setExpression("Constraints[13]", "Params.sketch15_width")
sketch15.setExpression("Constraints[14]", "Params.sketch15_width2")
sketch15.setExpression("Constraints[15]", "Params.sketch15_height")
pocket8 = body.newObject("PartDesign::Pocket", "Pocket007")
pocket8.Profile = sketch15
pocket8.setExpression("Length", "Params.pocket8_length")

# Sketch on XZ plane
sketch16 = body.newObject("Sketcher::SketchObject", "Sketch015")
sketch16.AttachmentSupport = (doc.getObject("XZ_Plane"), [""])
sketch16.MapMode = "FlatFace"
sketch16.AttachmentOffset = App.Placement(App.Vector(0, 0, 60.5), App.Rotation())
add_polygon(sketch16, [(18, 28.5), (15, 28.5), (15, 21), (40, 21), (40, 24), (18, 24)])  # lines 0-5
sketch16.addConstraint([
    Sketcher.Constraint("Horizontal", 0),
    Sketcher.Constraint("Vertical", 1),
    Sketcher.Constraint("Horizontal", 2),
    Sketcher.Constraint("Vertical", 3),
    Sketcher.Constraint("Horizontal", 4),
    Sketcher.Constraint("Vertical", 5),
    Sketcher.Constraint("Equal", 0, 3),
    Sketcher.Constraint("DistanceX", 0, 2, 0, 1, 3.0),
    Sketcher.Constraint("DistanceX", 2, 1, 2, 2, 25.0),
    Sketcher.Constraint("DistanceY", 1, 2, 1, 1, 7.5),
    Sketcher.Constraint("DistanceX", -1, 1, 0, 2, 15.0),
    Sketcher.Constraint("DistanceY", -1, 1, 1, 2, 21.0),
])
sketch16.setExpression("Constraints[13]", "Params.sketch16_width")
sketch16.setExpression("Constraints[14]", "Params.sketch16_width2")
sketch16.setExpression("Constraints[15]", "Params.sketch16_height")
pad8 = body.newObject("PartDesign::Pad", "Pad007")
pad8.Profile = sketch16
pad8.setExpression("Length", "Params.pad8_length")
pad8.Reversed = True

# Sketch on YZ plane
sketch17 = body.newObject("Sketcher::SketchObject", "Sketch016")
sketch17.AttachmentSupport = (doc.getObject("YZ_Plane"), [""])
sketch17.MapMode = "FlatFace"
sketch17.AttachmentOffset = App.Placement(App.Vector(0, 0, 49.5), App.Rotation())
sketch17.addGeometry(Part.Circle(App.Vector(-54.5, 23.5, 0), App.Vector(0, 0, 1), 1.5), False)
sketch17.addConstraint([
    Sketcher.Constraint("Diameter", 0, 3.0),
    Sketcher.Constraint("DistanceX", 0, 3, -1, 1, 54.5),
    Sketcher.Constraint("DistanceY", -1, 1, 0, 3, 23.5),
])
sketch17.setExpression("Constraints[0]", "Params.sketch17_diameter")
pocket9 = body.newObject("PartDesign::Pocket", "Pocket008")
pocket9.Profile = sketch17
pocket9.setExpression("Length", "Params.pocket9_length")

# Sketch on XZ plane
sketch18 = body.newObject("Sketcher::SketchObject", "Sketch017")
sketch18.AttachmentSupport = (doc.getObject("XZ_Plane"), [""])
sketch18.MapMode = "FlatFace"
sketch18.AttachmentOffset = App.Placement(App.Vector(0, 0, 60.5), App.Rotation())
sketch18.addGeometry(Part.Circle(App.Vector(-41.5, 23.5, 0), App.Vector(0, 0, 1), 1.5), False)
sketch18.addConstraint([
    Sketcher.Constraint("Diameter", 0, 3.0),
    Sketcher.Constraint("DistanceX", 0, 3, -1, 1, 41.5),
    Sketcher.Constraint("DistanceY", -1, 1, 0, 3, 23.5),
])
sketch18.setExpression("Constraints[0]", "Params.sketch18_diameter")
pocket10 = body.newObject("PartDesign::Pocket", "Pocket009")
pocket10.Profile = sketch18
pocket10.setExpression("Length", "Params.pocket10_length")

# Sketch on YZ plane
sketch19 = body.newObject("Sketcher::SketchObject", "Sketch018")
sketch19.AttachmentSupport = (doc.getObject("YZ_Plane"), [""])
sketch19.MapMode = "FlatFace"
sketch19.AttachmentOffset = App.Placement(App.Vector(0, 0, -49.5), App.Rotation())
sketch19.addGeometry(Part.Circle(App.Vector(33.5, 23.5, 0), App.Vector(0, 0, 1), 1.5), False)
sketch19.addConstraint([
    Sketcher.Constraint("Diameter", 0, 3.0),
    Sketcher.Constraint("DistanceX", -1, 1, 0, 3, 33.5),
    Sketcher.Constraint("DistanceY", -1, 1, 0, 3, 23.5),
])
sketch19.setExpression("Constraints[0]", "Params.sketch19_diameter")
pocket11 = body.newObject("PartDesign::Pocket", "Pocket010")
pocket11.Profile = sketch19
pocket11.setExpression("Length", "Params.pocket11_length")
pocket11.Reversed = True

# Sketch on XZ plane
sketch20 = body.newObject("Sketcher::SketchObject", "Sketch019")
sketch20.AttachmentSupport = (doc.getObject("XZ_Plane"), [""])
sketch20.MapMode = "FlatFace"
sketch20.AttachmentOffset = App.Placement(App.Vector(0, 0, -40.5), App.Rotation())
sketch20.addGeometry(Part.Circle(App.Vector(42.5, 23.5, 0), App.Vector(0, 0, 1), 1.5), False)
sketch20.addConstraint([
    Sketcher.Constraint("Diameter", 0, 3.0),
    Sketcher.Constraint("DistanceX", -1, 1, 0, 3, 42.5),
    Sketcher.Constraint("DistanceY", -1, 1, 0, 3, 23.5),
])
sketch20.setExpression("Constraints[0]", "Params.sketch20_diameter")
pocket12 = body.newObject("PartDesign::Pocket", "Pocket011")
pocket12.Profile = sketch20
pocket12.setExpression("Length", "Params.pocket12_length")
pocket12.Reversed = True

# Sketch on XZ plane
sketch21 = body.newObject("Sketcher::SketchObject", "Sketch020")
sketch21.AttachmentSupport = (doc.getObject("XZ_Plane"), [""])
sketch21.MapMode = "FlatFace"
sketch21.AttachmentOffset = App.Placement(App.Vector(0, 0, 16.5), App.Rotation())
add_polygon(sketch21, [(47.5, 12), (47.5, 28.5), (49.5, 28.5), (49.5, 12)])  # lines 0-3
sketch21.addConstraint([
    Sketcher.Constraint("Vertical", 0),
    Sketcher.Constraint("Horizontal", 1),
    Sketcher.Constraint("Vertical", 2),
    Sketcher.Constraint("Horizontal", 3),
    Sketcher.Constraint("DistanceX", 1, 1, 1, 2, 2.0),
    Sketcher.Constraint("DistanceY", 0, 1, 0, 2, 16.5),
    Sketcher.Constraint("DistanceY", -1, 1, 2, 2, 12.0),
    Sketcher.Constraint("DistanceX", -1, 1, 0, 2, 47.5),
])
sketch21.setExpression("Constraints[8]", "Params.sketch21_width")
sketch21.setExpression("Constraints[9]", "Params.sketch21_height")
pocket13 = body.newObject("PartDesign::Pocket", "Pocket012")
pocket13.Profile = sketch21
pocket13.setExpression("Length", "Params.pocket13_length")
pocket13.Reversed = True

# Sketch on XZ plane
sketch22 = body.newObject("Sketcher::SketchObject", "Sketch021")
sketch22.AttachmentSupport = (doc.getObject("XZ_Plane"), [""])
sketch22.MapMode = "FlatFace"
sketch22.AttachmentOffset = App.Placement(App.Vector(0, 0, 60.5), App.Rotation())
add_polygon(sketch22, [(37, 32), (37, 24), (43, 24), (43, 32)])  # lines 0-3
sketch22.addConstraint([
    Sketcher.Constraint("Vertical", 0),
    Sketcher.Constraint("Horizontal", 1),
    Sketcher.Constraint("Vertical", 2),
    Sketcher.Constraint("Horizontal", 3),
    Sketcher.Constraint("DistanceX", 1, 1, 1, 2, 6.0),
    Sketcher.Constraint("DistanceY", 0, 2, 0, 1, 7.5),
    Sketcher.Constraint("DistanceX", -1, 1, 0, 2, 37.0),
    Sketcher.Constraint("DistanceY", -1, 1, 0, 2, 24.0),
])
sketch22.setExpression("Constraints[8]", "Params.sketch22_width")
sketch22.setExpression("Constraints[9]", "Params.sketch22_height")
pad9 = body.newObject("PartDesign::Pad", "Pad008")
pad9.Profile = sketch22
pad9.setExpression("Length", "Params.pad9_length")
pad9.Reversed = True

# Sketch on XZ plane
sketch23 = body.newObject("Sketcher::SketchObject", "Sketch022")
sketch23.AttachmentSupport = (doc.getObject("XZ_Plane"), [""])
sketch23.MapMode = "FlatFace"
sketch23.AttachmentOffset = App.Placement(App.Vector(0, 0, 60.5), App.Rotation())
add_polygon(sketch23, [(12, 32), (12, 24), (18, 24), (18, 32)])  # lines 0-3
sketch23.addConstraint([
    Sketcher.Constraint("Vertical", 0),
    Sketcher.Constraint("Horizontal", 1),
    Sketcher.Constraint("Vertical", 2),
    Sketcher.Constraint("Horizontal", 3),
    Sketcher.Constraint("DistanceX", 1, 1, 1, 2, 6.0),
    Sketcher.Constraint("DistanceY", 0, 2, 0, 1, 7.5),
    Sketcher.Constraint("DistanceX", -1, 1, 0, 2, 12.0),
    Sketcher.Constraint("DistanceY", -1, 1, 0, 2, 24.0),
])
sketch23.setExpression("Constraints[8]", "Params.sketch23_width")
sketch23.setExpression("Constraints[9]", "Params.sketch23_height")
pocket14 = body.newObject("PartDesign::Pocket", "Pocket013")
pocket14.Profile = sketch23
pocket14.setExpression("Length", "Params.pocket14_length")

doc.recompute()
